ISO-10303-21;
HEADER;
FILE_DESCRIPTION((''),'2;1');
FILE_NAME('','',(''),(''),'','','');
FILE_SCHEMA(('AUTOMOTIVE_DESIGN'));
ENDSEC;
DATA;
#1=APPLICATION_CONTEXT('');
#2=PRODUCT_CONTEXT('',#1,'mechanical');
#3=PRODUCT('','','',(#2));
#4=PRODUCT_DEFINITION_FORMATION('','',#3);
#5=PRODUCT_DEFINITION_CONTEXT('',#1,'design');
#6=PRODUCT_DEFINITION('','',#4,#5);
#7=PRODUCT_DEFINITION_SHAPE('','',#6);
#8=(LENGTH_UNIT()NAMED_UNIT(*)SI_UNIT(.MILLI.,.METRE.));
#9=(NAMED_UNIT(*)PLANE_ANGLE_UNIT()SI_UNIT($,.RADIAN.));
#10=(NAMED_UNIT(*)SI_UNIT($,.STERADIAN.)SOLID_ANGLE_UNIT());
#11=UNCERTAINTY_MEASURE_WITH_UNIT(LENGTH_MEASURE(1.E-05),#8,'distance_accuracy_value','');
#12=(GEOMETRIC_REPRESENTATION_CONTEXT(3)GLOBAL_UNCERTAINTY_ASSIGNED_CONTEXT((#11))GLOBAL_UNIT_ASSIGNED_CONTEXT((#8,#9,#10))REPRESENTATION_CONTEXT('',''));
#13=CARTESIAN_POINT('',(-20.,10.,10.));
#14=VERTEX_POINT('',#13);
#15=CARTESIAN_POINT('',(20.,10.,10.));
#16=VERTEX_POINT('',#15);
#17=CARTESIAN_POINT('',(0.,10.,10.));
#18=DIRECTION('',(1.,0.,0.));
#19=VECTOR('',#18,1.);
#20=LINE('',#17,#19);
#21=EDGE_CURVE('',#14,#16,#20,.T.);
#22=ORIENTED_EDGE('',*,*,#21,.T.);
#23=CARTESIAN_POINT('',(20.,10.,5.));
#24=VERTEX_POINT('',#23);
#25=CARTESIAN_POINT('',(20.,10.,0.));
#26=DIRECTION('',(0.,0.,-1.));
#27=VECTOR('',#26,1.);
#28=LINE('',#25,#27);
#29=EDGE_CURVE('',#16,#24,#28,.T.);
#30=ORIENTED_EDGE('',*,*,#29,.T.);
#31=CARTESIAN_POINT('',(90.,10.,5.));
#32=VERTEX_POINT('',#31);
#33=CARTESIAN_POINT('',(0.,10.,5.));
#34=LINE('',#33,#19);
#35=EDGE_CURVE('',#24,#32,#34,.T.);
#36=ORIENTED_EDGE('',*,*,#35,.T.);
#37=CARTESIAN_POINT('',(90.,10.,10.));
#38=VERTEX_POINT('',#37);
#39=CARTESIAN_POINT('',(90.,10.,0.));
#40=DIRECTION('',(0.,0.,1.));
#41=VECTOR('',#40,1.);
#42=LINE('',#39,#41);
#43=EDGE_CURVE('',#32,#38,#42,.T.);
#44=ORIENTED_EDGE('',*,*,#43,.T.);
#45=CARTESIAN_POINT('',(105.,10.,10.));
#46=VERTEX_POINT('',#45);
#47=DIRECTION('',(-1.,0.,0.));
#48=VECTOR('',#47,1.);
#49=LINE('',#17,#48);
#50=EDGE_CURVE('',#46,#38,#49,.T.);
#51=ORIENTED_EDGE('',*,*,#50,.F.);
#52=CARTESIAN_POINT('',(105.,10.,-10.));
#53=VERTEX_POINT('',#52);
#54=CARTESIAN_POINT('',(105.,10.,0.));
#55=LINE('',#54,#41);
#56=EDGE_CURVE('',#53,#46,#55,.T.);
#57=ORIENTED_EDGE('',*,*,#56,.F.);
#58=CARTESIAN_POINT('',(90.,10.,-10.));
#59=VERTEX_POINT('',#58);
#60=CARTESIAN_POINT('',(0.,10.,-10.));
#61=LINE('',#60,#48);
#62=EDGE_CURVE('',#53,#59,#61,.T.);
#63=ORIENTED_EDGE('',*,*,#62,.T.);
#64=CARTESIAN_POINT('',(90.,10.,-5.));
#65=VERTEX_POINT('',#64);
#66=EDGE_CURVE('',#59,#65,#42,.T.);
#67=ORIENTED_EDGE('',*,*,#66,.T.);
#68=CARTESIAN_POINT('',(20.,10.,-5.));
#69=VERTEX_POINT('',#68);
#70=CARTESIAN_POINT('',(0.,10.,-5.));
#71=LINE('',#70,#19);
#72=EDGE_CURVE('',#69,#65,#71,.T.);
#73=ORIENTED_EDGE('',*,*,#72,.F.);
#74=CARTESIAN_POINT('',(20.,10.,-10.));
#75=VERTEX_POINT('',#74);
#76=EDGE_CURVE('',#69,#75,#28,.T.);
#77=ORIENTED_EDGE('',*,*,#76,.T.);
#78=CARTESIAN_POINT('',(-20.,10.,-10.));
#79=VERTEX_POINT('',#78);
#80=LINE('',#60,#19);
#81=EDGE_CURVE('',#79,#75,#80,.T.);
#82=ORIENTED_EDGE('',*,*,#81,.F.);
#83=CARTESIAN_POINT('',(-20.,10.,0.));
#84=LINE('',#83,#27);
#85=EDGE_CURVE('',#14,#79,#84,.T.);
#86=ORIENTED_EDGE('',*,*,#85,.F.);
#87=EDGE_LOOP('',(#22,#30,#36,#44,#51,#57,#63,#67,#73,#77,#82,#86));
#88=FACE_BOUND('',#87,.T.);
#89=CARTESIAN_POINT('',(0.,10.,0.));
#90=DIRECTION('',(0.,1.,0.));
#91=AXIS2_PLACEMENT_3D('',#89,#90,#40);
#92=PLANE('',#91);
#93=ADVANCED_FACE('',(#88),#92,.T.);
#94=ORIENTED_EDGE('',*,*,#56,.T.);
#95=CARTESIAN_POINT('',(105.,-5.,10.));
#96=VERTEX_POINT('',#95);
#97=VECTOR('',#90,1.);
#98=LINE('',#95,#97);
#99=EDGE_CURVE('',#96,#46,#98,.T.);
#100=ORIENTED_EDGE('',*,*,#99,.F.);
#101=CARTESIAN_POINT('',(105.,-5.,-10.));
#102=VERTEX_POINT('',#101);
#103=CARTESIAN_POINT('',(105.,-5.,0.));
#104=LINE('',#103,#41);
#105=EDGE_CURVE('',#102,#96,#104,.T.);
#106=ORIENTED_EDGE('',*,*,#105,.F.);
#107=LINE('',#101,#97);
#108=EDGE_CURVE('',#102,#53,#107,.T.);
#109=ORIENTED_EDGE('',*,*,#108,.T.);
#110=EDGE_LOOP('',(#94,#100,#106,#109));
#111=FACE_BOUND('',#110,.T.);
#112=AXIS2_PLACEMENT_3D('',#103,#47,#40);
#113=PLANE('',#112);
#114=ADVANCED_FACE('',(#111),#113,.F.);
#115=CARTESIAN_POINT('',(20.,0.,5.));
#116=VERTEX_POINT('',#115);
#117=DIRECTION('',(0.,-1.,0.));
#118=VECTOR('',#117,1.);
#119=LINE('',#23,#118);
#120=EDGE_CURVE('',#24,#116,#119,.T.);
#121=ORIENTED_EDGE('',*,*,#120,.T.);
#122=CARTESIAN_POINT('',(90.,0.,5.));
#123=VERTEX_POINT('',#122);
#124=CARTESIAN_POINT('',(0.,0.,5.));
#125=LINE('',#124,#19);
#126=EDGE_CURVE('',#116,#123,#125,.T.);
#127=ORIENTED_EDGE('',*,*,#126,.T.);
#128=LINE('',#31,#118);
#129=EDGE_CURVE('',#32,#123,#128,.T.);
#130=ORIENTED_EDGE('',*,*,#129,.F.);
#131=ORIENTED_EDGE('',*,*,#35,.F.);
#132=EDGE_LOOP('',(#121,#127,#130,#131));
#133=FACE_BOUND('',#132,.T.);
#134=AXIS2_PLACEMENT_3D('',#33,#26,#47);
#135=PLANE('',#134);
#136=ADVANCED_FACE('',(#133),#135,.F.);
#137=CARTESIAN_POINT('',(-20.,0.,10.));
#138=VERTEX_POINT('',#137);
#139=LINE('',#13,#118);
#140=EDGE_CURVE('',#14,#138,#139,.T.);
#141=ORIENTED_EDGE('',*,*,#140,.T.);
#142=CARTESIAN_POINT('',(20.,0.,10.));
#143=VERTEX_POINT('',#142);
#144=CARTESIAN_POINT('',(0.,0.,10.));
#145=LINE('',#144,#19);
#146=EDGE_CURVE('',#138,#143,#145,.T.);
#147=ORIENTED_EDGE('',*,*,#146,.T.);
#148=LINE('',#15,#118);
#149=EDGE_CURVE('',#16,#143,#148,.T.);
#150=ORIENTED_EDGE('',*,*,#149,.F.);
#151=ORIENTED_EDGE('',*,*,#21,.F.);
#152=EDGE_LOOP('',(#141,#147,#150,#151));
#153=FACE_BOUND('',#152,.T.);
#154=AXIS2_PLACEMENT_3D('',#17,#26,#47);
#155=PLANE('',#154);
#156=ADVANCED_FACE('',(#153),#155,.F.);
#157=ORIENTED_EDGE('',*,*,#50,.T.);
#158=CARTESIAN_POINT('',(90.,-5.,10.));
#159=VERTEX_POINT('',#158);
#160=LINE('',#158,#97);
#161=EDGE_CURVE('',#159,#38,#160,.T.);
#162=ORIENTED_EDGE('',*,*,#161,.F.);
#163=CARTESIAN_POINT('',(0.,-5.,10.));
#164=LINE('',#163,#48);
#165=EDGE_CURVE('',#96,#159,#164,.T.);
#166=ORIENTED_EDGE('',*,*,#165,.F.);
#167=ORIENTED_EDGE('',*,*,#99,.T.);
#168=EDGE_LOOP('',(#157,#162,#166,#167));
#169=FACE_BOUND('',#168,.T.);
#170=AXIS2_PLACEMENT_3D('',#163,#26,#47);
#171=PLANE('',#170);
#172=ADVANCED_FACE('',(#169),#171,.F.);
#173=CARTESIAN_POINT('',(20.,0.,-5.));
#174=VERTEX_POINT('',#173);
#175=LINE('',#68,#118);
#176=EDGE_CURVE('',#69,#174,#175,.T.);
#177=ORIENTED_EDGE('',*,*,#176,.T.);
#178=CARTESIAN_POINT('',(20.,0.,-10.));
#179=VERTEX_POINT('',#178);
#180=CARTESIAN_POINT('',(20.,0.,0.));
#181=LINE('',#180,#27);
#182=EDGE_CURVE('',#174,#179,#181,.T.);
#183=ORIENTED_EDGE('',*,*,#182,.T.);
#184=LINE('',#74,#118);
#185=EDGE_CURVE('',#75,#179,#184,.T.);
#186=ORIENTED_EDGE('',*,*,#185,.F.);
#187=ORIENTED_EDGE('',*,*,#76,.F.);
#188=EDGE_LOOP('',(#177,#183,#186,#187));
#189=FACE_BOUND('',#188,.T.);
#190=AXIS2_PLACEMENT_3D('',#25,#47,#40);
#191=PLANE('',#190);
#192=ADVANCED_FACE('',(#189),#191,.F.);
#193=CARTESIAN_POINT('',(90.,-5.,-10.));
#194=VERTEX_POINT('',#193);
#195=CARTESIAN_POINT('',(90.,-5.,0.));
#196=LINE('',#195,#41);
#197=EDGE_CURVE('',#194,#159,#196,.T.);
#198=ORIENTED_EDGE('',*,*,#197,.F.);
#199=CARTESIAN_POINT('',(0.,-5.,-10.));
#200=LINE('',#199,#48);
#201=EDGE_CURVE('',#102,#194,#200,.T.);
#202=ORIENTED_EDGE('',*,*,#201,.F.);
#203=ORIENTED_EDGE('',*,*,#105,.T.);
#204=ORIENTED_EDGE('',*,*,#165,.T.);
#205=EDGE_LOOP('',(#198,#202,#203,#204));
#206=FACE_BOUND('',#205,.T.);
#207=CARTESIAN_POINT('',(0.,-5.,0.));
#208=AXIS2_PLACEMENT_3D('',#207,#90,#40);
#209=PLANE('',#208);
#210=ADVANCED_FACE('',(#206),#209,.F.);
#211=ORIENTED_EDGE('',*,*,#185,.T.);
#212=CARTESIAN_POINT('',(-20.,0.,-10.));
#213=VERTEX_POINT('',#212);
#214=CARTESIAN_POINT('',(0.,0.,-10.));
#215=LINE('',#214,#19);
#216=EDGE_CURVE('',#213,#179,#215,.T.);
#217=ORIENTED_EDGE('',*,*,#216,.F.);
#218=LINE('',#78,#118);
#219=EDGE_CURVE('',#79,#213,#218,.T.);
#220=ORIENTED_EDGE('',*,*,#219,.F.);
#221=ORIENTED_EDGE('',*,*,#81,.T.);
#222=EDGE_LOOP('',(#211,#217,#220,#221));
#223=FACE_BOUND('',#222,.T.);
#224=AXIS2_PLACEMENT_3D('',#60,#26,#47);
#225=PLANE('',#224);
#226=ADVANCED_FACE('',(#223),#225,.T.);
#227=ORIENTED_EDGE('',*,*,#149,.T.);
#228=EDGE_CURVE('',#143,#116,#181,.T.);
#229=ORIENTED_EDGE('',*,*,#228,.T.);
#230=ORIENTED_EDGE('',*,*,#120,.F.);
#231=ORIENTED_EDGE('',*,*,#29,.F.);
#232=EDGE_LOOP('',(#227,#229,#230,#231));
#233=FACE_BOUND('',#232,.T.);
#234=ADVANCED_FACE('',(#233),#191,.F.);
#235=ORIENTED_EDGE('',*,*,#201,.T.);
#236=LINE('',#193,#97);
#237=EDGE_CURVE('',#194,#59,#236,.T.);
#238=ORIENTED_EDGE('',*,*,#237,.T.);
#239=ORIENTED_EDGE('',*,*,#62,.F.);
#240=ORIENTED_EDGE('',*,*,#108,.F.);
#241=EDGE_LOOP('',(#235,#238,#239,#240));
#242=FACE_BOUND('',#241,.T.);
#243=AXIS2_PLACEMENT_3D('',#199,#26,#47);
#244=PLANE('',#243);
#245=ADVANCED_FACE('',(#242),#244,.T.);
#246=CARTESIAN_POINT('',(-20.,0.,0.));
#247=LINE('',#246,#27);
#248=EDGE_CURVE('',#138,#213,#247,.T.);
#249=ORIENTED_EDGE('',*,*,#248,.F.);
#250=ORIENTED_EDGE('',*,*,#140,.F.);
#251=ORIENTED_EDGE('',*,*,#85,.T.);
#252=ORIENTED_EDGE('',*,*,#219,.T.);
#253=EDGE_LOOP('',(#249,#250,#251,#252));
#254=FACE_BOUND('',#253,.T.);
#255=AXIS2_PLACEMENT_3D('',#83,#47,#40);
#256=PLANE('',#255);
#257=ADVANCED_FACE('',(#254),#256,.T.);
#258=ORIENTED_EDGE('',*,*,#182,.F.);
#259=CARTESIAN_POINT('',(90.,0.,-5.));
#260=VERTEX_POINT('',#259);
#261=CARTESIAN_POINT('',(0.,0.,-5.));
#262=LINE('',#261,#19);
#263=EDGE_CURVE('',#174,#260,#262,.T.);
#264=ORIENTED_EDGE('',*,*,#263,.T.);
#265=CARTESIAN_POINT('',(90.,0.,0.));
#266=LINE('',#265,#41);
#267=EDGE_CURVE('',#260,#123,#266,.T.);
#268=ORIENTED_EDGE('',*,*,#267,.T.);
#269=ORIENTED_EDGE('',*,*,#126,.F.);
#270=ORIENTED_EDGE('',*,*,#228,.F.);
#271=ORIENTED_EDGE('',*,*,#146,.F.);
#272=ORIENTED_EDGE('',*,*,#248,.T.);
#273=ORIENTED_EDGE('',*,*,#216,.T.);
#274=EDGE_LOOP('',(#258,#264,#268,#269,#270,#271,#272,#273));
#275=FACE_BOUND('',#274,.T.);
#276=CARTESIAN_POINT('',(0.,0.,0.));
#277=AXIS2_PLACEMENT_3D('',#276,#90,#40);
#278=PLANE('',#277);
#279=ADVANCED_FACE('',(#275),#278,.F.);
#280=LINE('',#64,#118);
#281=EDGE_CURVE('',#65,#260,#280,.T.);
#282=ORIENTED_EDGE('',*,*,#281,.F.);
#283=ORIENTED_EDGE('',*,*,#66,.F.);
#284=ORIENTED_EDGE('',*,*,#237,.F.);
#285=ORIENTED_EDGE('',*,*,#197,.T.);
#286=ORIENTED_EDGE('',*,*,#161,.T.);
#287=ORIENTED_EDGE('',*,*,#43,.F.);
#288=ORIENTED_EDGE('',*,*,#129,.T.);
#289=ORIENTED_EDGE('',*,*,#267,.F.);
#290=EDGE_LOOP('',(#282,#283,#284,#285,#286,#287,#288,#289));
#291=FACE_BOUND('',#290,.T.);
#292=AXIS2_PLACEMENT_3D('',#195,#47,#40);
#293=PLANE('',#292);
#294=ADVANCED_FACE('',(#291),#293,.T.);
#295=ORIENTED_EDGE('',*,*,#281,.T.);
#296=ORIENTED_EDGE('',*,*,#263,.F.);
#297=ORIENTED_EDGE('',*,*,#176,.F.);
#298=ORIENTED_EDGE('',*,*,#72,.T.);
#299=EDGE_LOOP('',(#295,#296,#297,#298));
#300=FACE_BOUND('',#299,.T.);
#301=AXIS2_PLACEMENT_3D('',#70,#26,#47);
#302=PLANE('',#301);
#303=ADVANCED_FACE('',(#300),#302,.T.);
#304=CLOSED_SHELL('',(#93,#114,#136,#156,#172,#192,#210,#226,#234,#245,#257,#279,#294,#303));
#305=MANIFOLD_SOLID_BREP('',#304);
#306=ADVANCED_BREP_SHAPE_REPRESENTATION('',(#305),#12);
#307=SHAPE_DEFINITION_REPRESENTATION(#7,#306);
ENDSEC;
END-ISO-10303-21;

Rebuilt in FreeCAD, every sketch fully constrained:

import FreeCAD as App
import Part
import Sketcher

V = App.Vector
Q = App.Units.Quantity


def add_polygon(sketch, points):
    """Adds a closed chain of lines whose ends are joined by coincident constraints."""
    first, n = sketch.GeometryCount, len(points)
    for a, b in zip(points, points[1:] + points[:1]):
        sketch.addGeometry(Part.LineSegment(App.Vector(*a, 0), App.Vector(*b, 0)), False)
    for i in range(n):
        sketch.addConstraint(Sketcher.Constraint("Coincident", first + i, 2, first + (i + 1) % n, 1))

doc = App.newDocument("Part")
body = doc.addObject("PartDesign::Body", "Body")

# Sketch on XZ plane
sketch1 = body.newObject("Sketcher::SketchObject", "Sketch")
sketch1.AttachmentSupport = (doc.getObject("XZ_Plane"), [""])
sketch1.MapMode = "FlatFace"
add_polygon(sketch1, [(20, 5), (90, 5), (90, -5), (20, -5), (20, -10), (-20, -10), (-20, 10), (20, 10)])  # lines 0-7
sketch1.addConstraint(Sketcher.Constraint("Horizontal", 0))
sketch1.addConstraint(Sketcher.Constraint("Vertical", 1))
sketch1.addConstraint(Sketcher.Constraint("Horizontal", 2))
sketch1.addConstraint(Sketcher.Constraint("Vertical", 3))
sketch1.addConstraint(Sketcher.Constraint("Horizontal", 4))
sketch1.addConstraint(Sketcher.Constraint("Vertical", 5))
sketch1.addConstraint(Sketcher.Constraint("Horizontal", 6))
sketch1.addConstraint(Sketcher.Constraint("Vertical", 7))
sketch1.addConstraint(Sketcher.Constraint("Symmetric", 3, 2, 5, 2, -1, 1))
sketch1.addConstraint(Sketcher.Constraint("Symmetric", 2, 2, 7, 2, -1))
sketch1.addConstraint(Sketcher.Constraint("DistanceX", 0, 1, 0, 2, Q("70 mm")))
sketch1.addConstraint(Sketcher.Constraint("DistanceX", 4, 2, 4, 1, Q("40 mm")))
sketch1.addConstraint(Sketcher.Constraint("DistanceY", 1, 2, 1, 1, Q("10 mm")))
sketch1.addConstraint(Sketcher.Constraint("DistanceY", 3, 2, 3, 1, Q("5 mm")))
pad1 = body.newObject("PartDesign::Pad", "Pad")
pad1.Profile = sketch1
pad1.Length = 10
pad1.Reversed = True

# Sketch on XZ plane
sketch2 = body.newObject("Sketcher::SketchObject", "Sketch001")
sketch2.AttachmentSupport = (doc.getObject("XZ_Plane"), [""])
sketch2.MapMode = "FlatFace"
sketch2.AttachmentOffset = App.Placement(V(0, 0, -10), App.Rotation())
add_polygon(sketch2, [(90, 10), (105, 10), (105, -10), (90, -10)])  # lines 0-3
sketch2.addConstraint(Sketcher.Constraint("Horizontal", 0))
sketch2.addConstraint(Sketcher.Constraint("Vertical", 1))
sketch2.addConstraint(Sketcher.Constraint("Horizontal", 2))
sketch2.addConstraint(Sketcher.Constraint("Vertical", 3))
sketch2.addConstraint(Sketcher.Constraint("DistanceX", 0, 1, 0, 2, Q("15 mm")))
sketch2.addConstraint(Sketcher.Constraint("DistanceY", 1, 2, 1, 1, Q("20 mm")))
sketch2.addConstraint(Sketcher.Constraint("DistanceX", -1, 1, 0, 2, Q("105 mm")))
sketch2.addConstraint(Sketcher.Constraint("DistanceY", -1, 1, 0, 2, Q("10 mm")))
pad2 = body.newObject("PartDesign::Pad", "Pad001")
pad2.Profile = sketch2
pad2.Length = 15

doc.recompute()
